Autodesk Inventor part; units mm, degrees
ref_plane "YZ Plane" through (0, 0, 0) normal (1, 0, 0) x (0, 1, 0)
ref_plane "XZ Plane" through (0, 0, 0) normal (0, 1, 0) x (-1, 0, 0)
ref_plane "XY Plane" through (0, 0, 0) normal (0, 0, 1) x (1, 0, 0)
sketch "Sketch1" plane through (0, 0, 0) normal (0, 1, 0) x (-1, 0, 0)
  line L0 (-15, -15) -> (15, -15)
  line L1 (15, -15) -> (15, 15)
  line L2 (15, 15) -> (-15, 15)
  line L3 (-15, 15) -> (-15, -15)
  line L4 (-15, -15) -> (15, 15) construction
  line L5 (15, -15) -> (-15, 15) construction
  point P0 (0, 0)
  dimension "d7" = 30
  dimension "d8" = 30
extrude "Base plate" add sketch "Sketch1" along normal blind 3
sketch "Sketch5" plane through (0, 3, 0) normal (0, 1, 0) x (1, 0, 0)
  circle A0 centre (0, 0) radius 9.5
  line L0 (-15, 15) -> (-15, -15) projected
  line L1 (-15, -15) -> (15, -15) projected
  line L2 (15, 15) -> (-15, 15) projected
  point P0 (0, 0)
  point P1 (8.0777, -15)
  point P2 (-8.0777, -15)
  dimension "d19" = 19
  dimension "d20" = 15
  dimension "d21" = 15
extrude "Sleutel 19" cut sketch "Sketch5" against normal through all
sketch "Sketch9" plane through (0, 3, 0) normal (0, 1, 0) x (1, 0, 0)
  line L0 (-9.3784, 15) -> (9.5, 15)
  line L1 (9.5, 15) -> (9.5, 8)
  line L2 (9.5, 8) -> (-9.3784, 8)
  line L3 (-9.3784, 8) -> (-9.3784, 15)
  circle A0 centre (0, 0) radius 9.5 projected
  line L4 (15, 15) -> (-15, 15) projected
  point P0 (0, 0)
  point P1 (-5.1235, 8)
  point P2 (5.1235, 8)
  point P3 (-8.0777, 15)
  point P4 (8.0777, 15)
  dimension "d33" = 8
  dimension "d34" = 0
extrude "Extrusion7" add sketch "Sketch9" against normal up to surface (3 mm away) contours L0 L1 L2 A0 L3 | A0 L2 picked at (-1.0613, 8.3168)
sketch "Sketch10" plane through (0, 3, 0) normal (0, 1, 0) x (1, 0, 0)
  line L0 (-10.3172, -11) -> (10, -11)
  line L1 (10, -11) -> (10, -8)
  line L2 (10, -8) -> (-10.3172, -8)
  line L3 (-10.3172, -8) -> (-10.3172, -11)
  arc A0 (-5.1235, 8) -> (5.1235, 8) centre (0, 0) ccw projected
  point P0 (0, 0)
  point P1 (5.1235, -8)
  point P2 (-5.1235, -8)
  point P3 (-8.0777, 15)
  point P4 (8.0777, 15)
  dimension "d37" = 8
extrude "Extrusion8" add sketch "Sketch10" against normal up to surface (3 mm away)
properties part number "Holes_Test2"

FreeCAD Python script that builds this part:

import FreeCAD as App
import Part
import Sketcher


def add_polygon(sketch, points):
    """Adds a closed chain of lines whose ends are joined by coincident constraints."""
    first, n = sketch.GeometryCount, len(points)
    for a, b in zip(points, points[1:] + points[:1]):
        sketch.addGeometry(Part.LineSegment(App.Vector(*a, 0), App.Vector(*b, 0)), False)
    for i in range(n):
        sketch.addConstraint(Sketcher.Constraint("Coincident", first + i, 2, first + (i + 1) % n, 1))

doc = App.newDocument("Part")
params = doc.addObject("Spreadsheet::Sheet", "Params")
for row, (alias, value) in enumerate([
    ("sketch1_width", "30 mm"),
    ("pad1_length", "3 mm"),
    ("sketch2_diameter", "19 mm"),
    ("sketch3_height", "7 mm"),
    ("pad2_length", "3 mm"),
    ("sketch4_height", "3 mm"),
    ("pad3_length", "3 mm"),
], start=1):
    params.set(f"A{row}", alias)
    params.set(f"B{row}", "=" + value)
    params.setAlias(f"B{row}", alias)

body = doc.addObject("PartDesign::Body", "Body")

# Sketch on XZ plane
sketch1 = body.newObject("Sketcher::SketchObject", "Sketch")
sketch1.AttachmentSupport = (doc.getObject("XZ_Plane"), [""])
sketch1.MapMode = "FlatFace"
add_polygon(sketch1, [(15, 15), (15, -15), (-15, -15), (-15, 15)])  # lines 0-3
sketch1.addConstraint([
    Sketcher.Constraint("Vertical", 0),
    Sketcher.Constraint("Horizontal", 1),
    Sketcher.Constraint("Vertical", 2),
    Sketcher.Constraint("Horizontal", 3),
    Sketcher.Constraint("Symmetric", 0, 2, 2, 2, -1, 1),
    Sketcher.Constraint("Equal", 3, 0),
    Sketcher.Constraint("DistanceX", 1, 2, 1, 1, 30.0),
])
sketch1.setExpression("Constraints[10]", "Params.sketch1_width")
pad1 = body.newObject("PartDesign::Pad", "Pad")
pad1.Profile = sketch1
pad1.setExpression("Length", "Params.pad1_length")
pad1.Reversed = True

# Sketch on XZ plane
sketch2 = body.newObject("Sketcher::SketchObject", "Sketch001")
sketch2.AttachmentSupport = (doc.getObject("XZ_Plane"), [""])
sketch2.MapMode = "FlatFace"
sketch2.AttachmentOffset = App.Placement(App.Vector(0, 0, -3), App.Rotation())
sketch2.addGeometry(Part.Circle(App.Vector(0, 0, 0), App.Vector(0, 0, 1), 9.5), False)
sketch2.addConstraint([
    Sketcher.Constraint("Coincident", 0, 3, -1, 1),
    Sketcher.Constraint("Diameter", 0, 19.0),
])
sketch2.setExpression("Constraints[1]", "Params.sketch2_diameter")
pocket1 = body.newObject("PartDesign::Pocket", "Pocket")
pocket1.Profile = sketch2
pocket1.Type = "ThroughAll"
pocket1.Reversed = True

# Sketch on XZ plane
sketch3 = body.newObject("Sketcher::SketchObject", "Sketch002")
sketch3.AttachmentSupport = (doc.getObject("XZ_Plane"), [""])
sketch3.MapMode = "FlatFace"
sketch3.AttachmentOffset = App.Placement(App.Vector(0, 0, -3), App.Rotation())
add_polygon(sketch3, [(9.5, -15), (-9.3784, -15), (-9.3784, -8), (9.5, -8)])  # lines 0-3
sketch3.addConstraint([
    Sketcher.Constraint("Horizontal", 0),
    Sketcher.Constraint("Vertical", 1),
    Sketcher.Constraint("Horizontal", 2),
    Sketcher.Constraint("Vertical", 3),
    Sketcher.Constraint("DistanceY", 1, 2, -1, 1, 8.0),
    Sketcher.Constraint("DistanceY", 1, 1, 1, 2, 7.0),
    Sketcher.Constraint("DistanceX", -1, 1, 2, 2, 9.5),
    Sketcher.Constraint("DistanceX", 0, 2, 0, 1, 18.8784),
])
sketch3.setExpression("Constraints[9]", "Params.sketch3_height")
pad2 = body.newObject("PartDesign::Pad", "Pad001")
pad2.Profile = sketch3
pad2.setExpression("Length", "Params.pad2_length")

# Sketch on XZ plane
sketch4 = body.newObject("Sketcher::SketchObject", "Sketch003")
sketch4.AttachmentSupport = (doc.getObject("XZ_Plane"), [""])
sketch4.MapMode = "FlatFace"
sketch4.AttachmentOffset = App.Placement(App.Vector(0, 0, -3), App.Rotation())
add_polygon(sketch4, [(-10.3172, 8), (-10.3172, 11), (10, 11), (10, 8)])  # lines 0-3
sketch4.addConstraint([
    Sketcher.Constraint("Vertical", 0),
    Sketcher.Constraint("Horizontal", 1),
    Sketcher.Constraint("Vertical", 2),
    Sketcher.Constraint("Horizontal", 3),
    Sketcher.Constraint("DistanceY", -1, 1, 2, 2, 8.0),
    Sketcher.Constraint("DistanceY", 0, 1, 0, 2, 3.0),
    Sketcher.Constraint("DistanceX", -1, 1, 1, 2, 10.0),
    Sketcher.Constraint("DistanceX", 1, 1, 1, 2, 20.3172),
])
sketch4.setExpression("Constraints[9]", "Params.sketch4_height")
pad3 = body.newObject("PartDesign::Pad", "Pad002")
pad3.Profile = sketch4
pad3.setExpression("Length", "Params.pad3_length")

doc.recompute()
